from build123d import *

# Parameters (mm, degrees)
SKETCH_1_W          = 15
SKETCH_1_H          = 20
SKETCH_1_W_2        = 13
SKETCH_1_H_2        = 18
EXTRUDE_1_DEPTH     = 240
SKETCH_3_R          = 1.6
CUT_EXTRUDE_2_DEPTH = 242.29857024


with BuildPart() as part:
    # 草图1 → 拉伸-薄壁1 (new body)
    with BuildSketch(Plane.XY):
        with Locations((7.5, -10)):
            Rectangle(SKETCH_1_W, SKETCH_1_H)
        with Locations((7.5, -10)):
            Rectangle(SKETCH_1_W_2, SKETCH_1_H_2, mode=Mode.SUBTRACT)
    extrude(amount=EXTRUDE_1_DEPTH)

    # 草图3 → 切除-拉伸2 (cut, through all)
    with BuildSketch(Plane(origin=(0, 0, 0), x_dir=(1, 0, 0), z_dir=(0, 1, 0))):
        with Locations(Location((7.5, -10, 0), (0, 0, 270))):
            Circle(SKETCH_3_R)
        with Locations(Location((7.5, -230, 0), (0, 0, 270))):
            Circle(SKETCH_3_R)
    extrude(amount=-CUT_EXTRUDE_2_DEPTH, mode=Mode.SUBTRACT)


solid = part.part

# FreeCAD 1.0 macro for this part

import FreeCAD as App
import Part
import Sketcher
from FreeCAD import Vector


def add_polygon(sketch, points):
    """Adds a closed chain of lines whose ends are joined by coincident constraints."""
    first, n = sketch.GeometryCount, len(points)
    for a, b in zip(points, points[1:] + points[:1]):
        sketch.addGeometry(Part.LineSegment(App.Vector(*a, 0), App.Vector(*b, 0)), False)
    for i in range(n):
        sketch.addConstraint(Sketcher.Constraint("Coincident", first + i, 2, first + (i + 1) % n, 1))

doc = App.newDocument("Part")
body = doc.addObject("PartDesign::Body", "Body")

sketch1 = body.newObject("Sketcher::SketchObject", "Sketch")
sketch1.AttachmentSupport = (doc.getObject("XY_Plane"), [""])
sketch1.MapMode = "FlatFace"
add_polygon(sketch1, [(0, 0), (0, -20), (15, -20), (15, 0)])
add_polygon(sketch1, [(14, -19), (1, -19), (1, -1), (14, -1)])
sketch1.addConstraint([
    Sketcher.Constraint("Vertical", 0),
    Sketcher.Constraint("Horizontal", 1),
    Sketcher.Constraint("Vertical", 2),
    Sketcher.Constraint("Horizontal", 3),
    Sketcher.Constraint("Horizontal", 4),
    Sketcher.Constraint("Vertical", 5),
    Sketcher.Constraint("Horizontal", 6),
    Sketcher.Constraint("Vertical", 7),
    Sketcher.Constraint("Coincident", 3, 2, -1, 1),
    Sketcher.Constraint("DistanceX", 1, 1, 1, 2, 15.0),
    Sketcher.Constraint("DistanceX", 4, 2, 4, 1, 13.0),
    Sketcher.Constraint("DistanceY", 0, 2, 0, 1, 20.0),
    Sketcher.Constraint("DistanceY", 5, 1, 5, 2, 18.0),
    Sketcher.Constraint("DistanceX", -1, 1, 4, 2, 1.0),
    Sketcher.Constraint("DistanceY", 4, 2, -1, 1, 19.0),
])
pad1 = body.newObject("PartDesign::Pad", "Pad")
pad1.Profile = sketch1
pad1.Length = 240

sketch2 = body.newObject("Sketcher::SketchObject", "Sketch001")
sketch2.AttachmentSupport = (doc.getObject("XZ_Plane"), [""])
sketch2.MapMode = "FlatFace"
sketch2.addGeometry([
    Part.Circle(Vector(7.5, 10, 0), Vector(0, 0, 1), 1.6),
    Part.Circle(Vector(7.5, 230, 0), Vector(0, 0, 1), 1.6),
], False)
sketch2.addConstraint([
    Sketcher.Constraint("Equal", 0, 1),
    Sketcher.Constraint("Vertical", 0, 3, 1, 3),
    Sketcher.Constraint("Diameter", 0, 3.2),
    Sketcher.Constraint("DistanceY", -1, 1, 0, 3, 10.0),
    Sketcher.Constraint("DistanceY", -1, 1, 1, 3, 230.0),
    Sketcher.Constraint("DistanceX", -1, 1, 0, 3, 7.5),
])
pocket1 = body.newObject("PartDesign::Pocket", "Pocket")
pocket1.Profile = sketch2
pocket1.Type = "ThroughAll"
pocket1.Reversed = True

doc.recompute()
